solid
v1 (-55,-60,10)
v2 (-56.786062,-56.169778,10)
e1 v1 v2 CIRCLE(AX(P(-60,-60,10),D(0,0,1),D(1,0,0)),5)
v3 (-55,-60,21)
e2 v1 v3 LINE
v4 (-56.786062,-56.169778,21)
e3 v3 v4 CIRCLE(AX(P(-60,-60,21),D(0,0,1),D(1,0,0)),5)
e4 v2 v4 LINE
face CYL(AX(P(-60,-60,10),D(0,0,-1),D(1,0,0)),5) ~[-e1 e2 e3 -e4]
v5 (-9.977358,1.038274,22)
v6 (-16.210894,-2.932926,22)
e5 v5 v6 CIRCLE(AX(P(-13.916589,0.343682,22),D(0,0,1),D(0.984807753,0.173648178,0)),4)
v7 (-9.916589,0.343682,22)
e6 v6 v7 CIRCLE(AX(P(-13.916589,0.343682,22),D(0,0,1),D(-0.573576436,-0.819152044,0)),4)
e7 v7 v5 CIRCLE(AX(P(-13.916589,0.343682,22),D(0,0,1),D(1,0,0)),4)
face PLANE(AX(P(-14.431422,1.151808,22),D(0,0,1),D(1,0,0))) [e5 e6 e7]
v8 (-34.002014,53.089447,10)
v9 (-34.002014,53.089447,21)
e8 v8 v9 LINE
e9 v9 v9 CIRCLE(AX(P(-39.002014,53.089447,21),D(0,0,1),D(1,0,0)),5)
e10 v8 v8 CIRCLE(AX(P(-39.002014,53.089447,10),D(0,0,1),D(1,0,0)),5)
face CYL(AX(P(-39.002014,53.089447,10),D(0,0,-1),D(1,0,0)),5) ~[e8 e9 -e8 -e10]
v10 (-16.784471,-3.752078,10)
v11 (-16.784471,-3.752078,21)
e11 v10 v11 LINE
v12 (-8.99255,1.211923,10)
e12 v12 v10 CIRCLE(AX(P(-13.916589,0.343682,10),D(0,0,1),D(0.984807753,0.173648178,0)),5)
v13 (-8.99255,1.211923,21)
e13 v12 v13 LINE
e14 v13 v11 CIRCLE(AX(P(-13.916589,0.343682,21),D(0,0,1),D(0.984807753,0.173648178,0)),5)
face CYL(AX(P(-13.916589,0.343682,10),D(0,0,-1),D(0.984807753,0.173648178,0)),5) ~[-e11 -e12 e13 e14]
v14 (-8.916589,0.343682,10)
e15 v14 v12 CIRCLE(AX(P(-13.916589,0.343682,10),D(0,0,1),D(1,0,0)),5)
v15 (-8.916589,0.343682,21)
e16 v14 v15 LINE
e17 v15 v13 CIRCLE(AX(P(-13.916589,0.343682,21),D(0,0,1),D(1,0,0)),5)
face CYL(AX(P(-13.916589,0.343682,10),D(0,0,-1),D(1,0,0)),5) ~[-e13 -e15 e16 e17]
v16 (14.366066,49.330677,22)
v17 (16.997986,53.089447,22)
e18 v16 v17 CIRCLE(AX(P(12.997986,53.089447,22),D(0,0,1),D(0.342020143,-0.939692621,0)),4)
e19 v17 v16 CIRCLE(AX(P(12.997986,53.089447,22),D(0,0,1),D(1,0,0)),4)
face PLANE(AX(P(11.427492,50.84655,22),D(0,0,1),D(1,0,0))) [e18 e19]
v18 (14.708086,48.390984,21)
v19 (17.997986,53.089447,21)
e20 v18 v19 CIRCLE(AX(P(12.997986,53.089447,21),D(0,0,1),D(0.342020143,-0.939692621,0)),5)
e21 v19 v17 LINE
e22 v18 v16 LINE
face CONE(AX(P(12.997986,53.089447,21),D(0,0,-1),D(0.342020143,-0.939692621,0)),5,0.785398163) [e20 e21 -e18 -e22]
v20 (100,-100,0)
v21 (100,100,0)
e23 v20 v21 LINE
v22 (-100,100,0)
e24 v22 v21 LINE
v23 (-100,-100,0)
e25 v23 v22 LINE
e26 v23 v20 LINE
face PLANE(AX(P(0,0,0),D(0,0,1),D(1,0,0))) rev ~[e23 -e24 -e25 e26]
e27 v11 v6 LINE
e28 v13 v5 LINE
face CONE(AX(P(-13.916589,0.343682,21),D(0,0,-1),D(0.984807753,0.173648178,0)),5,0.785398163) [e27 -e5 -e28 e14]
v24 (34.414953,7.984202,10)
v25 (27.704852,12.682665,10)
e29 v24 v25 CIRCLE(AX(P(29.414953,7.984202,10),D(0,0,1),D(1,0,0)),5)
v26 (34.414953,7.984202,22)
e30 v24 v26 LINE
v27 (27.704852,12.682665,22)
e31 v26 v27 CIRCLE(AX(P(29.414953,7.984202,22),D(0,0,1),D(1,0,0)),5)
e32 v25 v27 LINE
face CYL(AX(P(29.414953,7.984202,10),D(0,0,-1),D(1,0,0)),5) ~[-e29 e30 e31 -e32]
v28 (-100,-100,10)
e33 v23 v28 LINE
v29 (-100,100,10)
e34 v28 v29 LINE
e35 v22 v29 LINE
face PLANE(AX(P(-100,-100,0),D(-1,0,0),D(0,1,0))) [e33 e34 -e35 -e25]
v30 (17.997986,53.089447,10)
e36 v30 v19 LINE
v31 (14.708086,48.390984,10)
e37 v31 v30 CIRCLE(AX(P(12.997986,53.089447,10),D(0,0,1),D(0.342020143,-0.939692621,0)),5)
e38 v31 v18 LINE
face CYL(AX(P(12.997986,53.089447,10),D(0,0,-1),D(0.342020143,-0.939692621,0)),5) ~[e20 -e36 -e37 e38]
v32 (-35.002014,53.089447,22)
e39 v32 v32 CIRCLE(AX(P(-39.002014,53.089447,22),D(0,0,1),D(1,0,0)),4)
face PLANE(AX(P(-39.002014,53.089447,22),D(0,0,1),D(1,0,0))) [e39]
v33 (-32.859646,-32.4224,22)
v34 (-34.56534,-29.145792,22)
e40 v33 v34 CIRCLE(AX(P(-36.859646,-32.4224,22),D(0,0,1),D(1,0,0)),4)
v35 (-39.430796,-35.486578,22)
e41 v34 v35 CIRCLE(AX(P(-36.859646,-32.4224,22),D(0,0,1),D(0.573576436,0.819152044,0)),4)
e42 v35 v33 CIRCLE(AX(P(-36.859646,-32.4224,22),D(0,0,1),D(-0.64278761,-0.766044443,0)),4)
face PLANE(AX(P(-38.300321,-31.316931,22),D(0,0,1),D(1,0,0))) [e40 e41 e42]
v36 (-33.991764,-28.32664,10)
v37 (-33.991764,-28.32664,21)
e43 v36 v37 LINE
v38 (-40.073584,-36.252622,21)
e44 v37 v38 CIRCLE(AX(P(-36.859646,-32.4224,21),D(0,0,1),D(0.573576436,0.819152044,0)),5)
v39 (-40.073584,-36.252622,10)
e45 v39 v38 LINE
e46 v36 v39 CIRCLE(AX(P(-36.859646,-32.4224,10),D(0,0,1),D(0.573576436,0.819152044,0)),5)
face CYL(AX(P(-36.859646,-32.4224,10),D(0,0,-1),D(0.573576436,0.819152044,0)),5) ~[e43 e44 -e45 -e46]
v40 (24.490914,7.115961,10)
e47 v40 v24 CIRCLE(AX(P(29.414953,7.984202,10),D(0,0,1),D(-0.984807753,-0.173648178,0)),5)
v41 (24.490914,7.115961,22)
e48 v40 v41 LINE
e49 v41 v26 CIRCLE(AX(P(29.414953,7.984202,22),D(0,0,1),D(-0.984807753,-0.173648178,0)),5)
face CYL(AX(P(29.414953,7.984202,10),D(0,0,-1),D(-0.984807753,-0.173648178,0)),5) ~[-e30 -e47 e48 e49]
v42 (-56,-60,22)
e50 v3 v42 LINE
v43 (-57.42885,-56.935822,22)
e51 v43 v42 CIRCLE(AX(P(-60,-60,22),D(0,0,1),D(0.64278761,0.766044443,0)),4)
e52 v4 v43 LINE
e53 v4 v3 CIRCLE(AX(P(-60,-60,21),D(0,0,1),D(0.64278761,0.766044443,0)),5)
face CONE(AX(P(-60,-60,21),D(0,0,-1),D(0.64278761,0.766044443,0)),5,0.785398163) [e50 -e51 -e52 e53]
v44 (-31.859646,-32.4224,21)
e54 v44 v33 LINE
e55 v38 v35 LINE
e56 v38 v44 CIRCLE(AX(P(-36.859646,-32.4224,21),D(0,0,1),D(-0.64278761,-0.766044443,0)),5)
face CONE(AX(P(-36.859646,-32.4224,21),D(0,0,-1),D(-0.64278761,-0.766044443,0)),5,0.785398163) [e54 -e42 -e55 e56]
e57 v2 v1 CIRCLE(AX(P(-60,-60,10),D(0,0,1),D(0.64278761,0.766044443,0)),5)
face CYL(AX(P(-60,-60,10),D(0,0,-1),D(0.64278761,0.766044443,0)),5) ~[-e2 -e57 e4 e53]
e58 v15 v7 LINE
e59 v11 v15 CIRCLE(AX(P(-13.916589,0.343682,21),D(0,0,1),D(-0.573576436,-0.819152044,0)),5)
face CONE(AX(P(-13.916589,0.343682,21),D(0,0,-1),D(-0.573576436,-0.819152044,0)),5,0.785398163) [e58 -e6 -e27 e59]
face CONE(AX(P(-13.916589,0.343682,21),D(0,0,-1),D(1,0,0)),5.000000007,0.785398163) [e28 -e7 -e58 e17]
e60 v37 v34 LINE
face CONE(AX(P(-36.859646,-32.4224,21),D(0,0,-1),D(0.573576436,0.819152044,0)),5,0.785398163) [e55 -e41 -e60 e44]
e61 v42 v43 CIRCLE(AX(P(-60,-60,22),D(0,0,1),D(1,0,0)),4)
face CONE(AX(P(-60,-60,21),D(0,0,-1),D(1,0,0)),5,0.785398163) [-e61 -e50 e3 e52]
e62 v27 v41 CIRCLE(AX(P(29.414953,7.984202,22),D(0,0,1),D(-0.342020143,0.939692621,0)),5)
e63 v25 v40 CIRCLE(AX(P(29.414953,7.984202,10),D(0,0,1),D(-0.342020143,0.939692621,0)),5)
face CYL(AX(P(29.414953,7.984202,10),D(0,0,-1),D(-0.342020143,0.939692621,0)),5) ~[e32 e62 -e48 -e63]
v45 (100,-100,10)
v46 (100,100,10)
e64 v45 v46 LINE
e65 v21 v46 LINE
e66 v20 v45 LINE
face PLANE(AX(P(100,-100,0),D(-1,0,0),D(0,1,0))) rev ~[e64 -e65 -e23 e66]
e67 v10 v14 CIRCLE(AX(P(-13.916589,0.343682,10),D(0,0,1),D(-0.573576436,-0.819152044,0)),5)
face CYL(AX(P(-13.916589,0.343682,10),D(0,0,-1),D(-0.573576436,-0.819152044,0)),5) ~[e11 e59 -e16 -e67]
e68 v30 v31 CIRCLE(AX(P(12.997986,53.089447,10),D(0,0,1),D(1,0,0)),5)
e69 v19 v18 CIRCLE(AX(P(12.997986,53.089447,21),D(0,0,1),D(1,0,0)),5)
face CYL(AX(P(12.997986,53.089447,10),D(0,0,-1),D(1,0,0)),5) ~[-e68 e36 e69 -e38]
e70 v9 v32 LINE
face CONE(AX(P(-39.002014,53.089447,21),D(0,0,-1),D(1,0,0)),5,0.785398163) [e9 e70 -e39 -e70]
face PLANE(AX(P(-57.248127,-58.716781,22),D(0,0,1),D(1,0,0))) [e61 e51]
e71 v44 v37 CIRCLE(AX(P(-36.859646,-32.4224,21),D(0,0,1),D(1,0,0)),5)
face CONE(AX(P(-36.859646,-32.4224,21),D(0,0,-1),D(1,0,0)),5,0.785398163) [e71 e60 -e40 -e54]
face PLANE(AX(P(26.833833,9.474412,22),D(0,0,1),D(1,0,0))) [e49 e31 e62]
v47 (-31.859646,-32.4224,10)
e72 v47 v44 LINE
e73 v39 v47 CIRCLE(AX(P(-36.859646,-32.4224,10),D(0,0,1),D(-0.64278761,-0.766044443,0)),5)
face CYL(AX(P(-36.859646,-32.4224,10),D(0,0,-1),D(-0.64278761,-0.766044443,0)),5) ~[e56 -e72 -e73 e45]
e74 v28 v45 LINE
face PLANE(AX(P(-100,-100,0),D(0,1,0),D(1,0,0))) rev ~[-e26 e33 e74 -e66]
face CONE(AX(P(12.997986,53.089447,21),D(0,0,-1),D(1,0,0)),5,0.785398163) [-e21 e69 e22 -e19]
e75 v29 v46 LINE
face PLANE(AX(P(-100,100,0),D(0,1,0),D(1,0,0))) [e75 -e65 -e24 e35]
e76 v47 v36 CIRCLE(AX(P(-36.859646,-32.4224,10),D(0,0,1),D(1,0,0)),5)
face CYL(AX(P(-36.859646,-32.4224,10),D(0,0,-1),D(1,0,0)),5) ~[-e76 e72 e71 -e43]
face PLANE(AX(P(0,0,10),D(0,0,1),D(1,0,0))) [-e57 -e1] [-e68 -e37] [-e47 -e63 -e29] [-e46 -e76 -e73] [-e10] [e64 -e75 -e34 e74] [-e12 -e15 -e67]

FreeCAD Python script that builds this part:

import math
import FreeCAD as App
import Part
import Sketcher
from FreeCAD import Vector


def edges_at(feature, points):
    """Names of the edges that pass closest to the given points."""
    edges = feature.Shape.Edges
    near = lambda p: min(range(len(edges)), key=lambda i: edges[i].distToShape(Part.Vertex(*p))[0])
    return sorted({f"Edge{near(p) + 1}" for p in points})

doc = App.newDocument("Part")
body = doc.addObject("PartDesign::Body", "Body")

sketch1 = body.newObject("Sketcher::SketchObject", "Sketch")
sketch1.AttachmentSupport = (doc.getObject("XY_Plane"), [""])
sketch1.MapMode = "FlatFace"
sketch1.addGeometry(Part.LineSegment(Vector(-100, 100, 0), Vector(-100, -100, 0)), False)
sketch1.addGeometry(Part.LineSegment(Vector(-100, -100, 0), Vector(100, -100, 0)), False)
sketch1.addGeometry(Part.LineSegment(Vector(100, -100, 0), Vector(100, 100, 0)), False)
sketch1.addGeometry(Part.LineSegment(Vector(100, 100, 0), Vector(-100, 100, 0)), False)
sketch1.addConstraint(Sketcher.Constraint("Coincident", 0, 2, 1, 1))
sketch1.addConstraint(Sketcher.Constraint("Coincident", 1, 2, 2, 1))
sketch1.addConstraint(Sketcher.Constraint("Coincident", 2, 2, 3, 1))
sketch1.addConstraint(Sketcher.Constraint("Coincident", 3, 2, 0, 1))
sketch1.addConstraint(Sketcher.Constraint("Vertical", 0))
sketch1.addConstraint(Sketcher.Constraint("Horizontal", 1))
sketch1.addConstraint(Sketcher.Constraint("Vertical", 2))
sketch1.addConstraint(Sketcher.Constraint("Horizontal", 3))
sketch1.addConstraint(Sketcher.Constraint("Symmetric", 0, 2, 2, 2, -1, 1))
sketch1.addConstraint(Sketcher.Constraint("Equal", 3, 0))
sketch1.addConstraint(Sketcher.Constraint("DistanceX", 1, 1, 1, 2, 200.0))
pad1 = body.newObject("PartDesign::Pad", "Pad")
pad1.Profile = sketch1
pad1.Length = 10

sketch2 = body.newObject("Sketcher::SketchObject", "Sketch001")
sketch2.AttachmentSupport = (doc.getObject("XY_Plane"), [""])
sketch2.MapMode = "FlatFace"
sketch2.AttachmentOffset = App.Placement(Vector(0, 0, 10), App.Rotation())
sketch2.addGeometry(Part.ArcOfCircle(Part.Circle(Vector(-60, -60, 0), Vector(0, 0, 1), 5), math.radians(0), math.radians(50)), False)
sketch2.addGeometry(Part.ArcOfCircle(Part.Circle(Vector(-60, -60, 0), Vector(0, 0, 1), 5), math.radians(50), math.radians(360)), False)
sketch2.addGeometry(Part.Circle(Vector(-39, 53.1, 0), Vector(0, 0, 1), 5), False)
sketch2.addGeometry(Part.ArcOfCircle(Part.Circle(Vector(13, 53.1, 0), Vector(0, 0, 1), 5), math.radians(-70), math.radians(0)), False)
sketch2.addGeometry(Part.ArcOfCircle(Part.Circle(Vector(13, 53.1, 0), Vector(0, 0, 1), 5), math.radians(0), math.radians(290)), False)
sketch2.addGeometry(Part.ArcOfCircle(Part.Circle(Vector(29.4, 8, 0), Vector(0, 0, 1), 5), math.radians(110), math.radians(190)), False)
sketch2.addGeometry(Part.ArcOfCircle(Part.Circle(Vector(29.4, 8, 0), Vector(0, 0, 1), 5), math.radians(-170), math.radians(0)), False)
sketch2.addGeometry(Part.ArcOfCircle(Part.Circle(Vector(29.4, 8, 0), Vector(0, 0, 1), 5), math.radians(0), math.radians(110)), False)
sketch2.addGeometry(Part.ArcOfCircle(Part.Circle(Vector(-13.9, 0.3, 0), Vector(0, 0, 1), 5), math.radians(10), math.radians(235)), False)
sketch2.addGeometry(Part.ArcOfCircle(Part.Circle(Vector(-13.9, 0.3, 0), Vector(0, 0, 1), 5), math.radians(-125), math.radians(0)), False)
sketch2.addGeometry(Part.ArcOfCircle(Part.Circle(Vector(-13.9, 0.3, 0), Vector(0, 0, 1), 5), math.radians(0), math.radians(10)), False)
sketch2.addGeometry(Part.ArcOfCircle(Part.Circle(Vector(-36.9, -32.4, 0), Vector(0, 0, 1), 5), math.radians(55), math.radians(230)), False)
sketch2.addGeometry(Part.ArcOfCircle(Part.Circle(Vector(-36.9, -32.4, 0), Vector(0, 0, 1), 5), math.radians(-130), math.radians(0)), False)
sketch2.addGeometry(Part.ArcOfCircle(Part.Circle(Vector(-36.9, -32.4, 0), Vector(0, 0, 1), 5), math.radians(0), math.radians(55)), False)
sketch2.addConstraint(Sketcher.Constraint("Tangent", 0, 1, 1, 2))
sketch2.addConstraint(Sketcher.Constraint("Coincident", 1, 1, 0, 2))
sketch2.addConstraint(Sketcher.Constraint("Tangent", 3, 1, 4, 2))
sketch2.addConstraint(Sketcher.Constraint("Coincident", 4, 1, 3, 2))
sketch2.addConstraint(Sketcher.Constraint("Tangent", 5, 2, 6, 1))
sketch2.addConstraint(Sketcher.Constraint("Tangent", 6, 2, 7, 1))
sketch2.addConstraint(Sketcher.Constraint("Tangent", 7, 2, 5, 1))
sketch2.addConstraint(Sketcher.Constraint("Tangent", 8, 2, 9, 1))
sketch2.addConstraint(Sketcher.Constraint("Tangent", 9, 2, 10, 1))
sketch2.addConstraint(Sketcher.Constraint("Tangent", 10, 2, 8, 1))
sketch2.addConstraint(Sketcher.Constraint("Tangent", 11, 2, 12, 1))
sketch2.addConstraint(Sketcher.Constraint("Tangent", 12, 2, 13, 1))
sketch2.addConstraint(Sketcher.Constraint("Tangent", 13, 2, 11, 1))
sketch2.addConstraint(Sketcher.Constraint("Equal", 1, 2))
sketch2.addConstraint(Sketcher.Constraint("Equal", 2, 3))
sketch2.addConstraint(Sketcher.Constraint("Equal", 4, 5))
sketch2.addConstraint(Sketcher.Constraint("Equal", 7, 8))
sketch2.addConstraint(Sketcher.Constraint("Equal", 10, 11))
sketch2.addConstraint(Sketcher.Constraint("Horizontal", 2, 3, 3, 3))
sketch2.addConstraint(Sketcher.Constraint("Horizontal", 1, 3, 0, 1))
sketch2.addConstraint(Sketcher.Constraint("Horizontal", 3, 3, 4, 1))
sketch2.addConstraint(Sketcher.Constraint("Horizontal", 7, 3, 6, 2))
sketch2.addConstraint(Sketcher.Constraint("Horizontal", 10, 3, 9, 2))
sketch2.addConstraint(Sketcher.Constraint("Horizontal", 13, 3, 12, 2))
sketch2.addConstraint(Sketcher.Constraint("Diameter", 2, 10.0))
sketch2.addConstraint(Sketcher.Constraint("DistanceX", 0, 3, -1, 1, 60.0))
sketch2.addConstraint(Sketcher.Constraint("DistanceY", 0, 3, -1, 1, 60.0))
sketch2.addConstraint(Sketcher.Constraint("DistanceX", 2, 3, 3, 3, 52.0))
sketch2.addConstraint(Sketcher.Constraint("DistanceY", 8, 2, 10, 2, 4.964001))
sketch2.addConstraint(Sketcher.Constraint("DistanceY", -1, 1, 5, 3, 7.984202))
sketch2.addConstraint(Sketcher.Constraint("DistanceY", 11, 3, -1, 1, 32.4224))
sketch2.addConstraint(Sketcher.Constraint("DistanceX", 4, 3, 3, 1, 1.710101))
sketch2.addConstraint(Sketcher.Constraint("DistanceX", 7, 2, 5, 3, 1.710101))
sketch2.addConstraint(Sketcher.Constraint("DistanceX", 8, 3, -1, 1, 13.916589))
sketch2.addConstraint(Sketcher.Constraint("DistanceY", -1, 1, 8, 3, 0.343682))
sketch2.addConstraint(Sketcher.Constraint("DistanceX", 1, 1, -1, 1, 56.786062))
sketch2.addConstraint(Sketcher.Constraint("DistanceY", -1, 1, 5, 2, 7.115961))
sketch2.addConstraint(Sketcher.Constraint("DistanceX", -1, 1, 7, 2, 27.704852))
sketch2.addConstraint(Sketcher.Constraint("DistanceX", 8, 2, -1, 1, 16.784471))
sketch2.addConstraint(Sketcher.Constraint("DistanceY", 13, 2, -1, 1, 28.32664))
sketch2.addConstraint(Sketcher.Constraint("DistanceX", 11, 2, 11, 3, 3.213938))
sketch2.addConstraint(Sketcher.Constraint("DistanceX", 2, 3, -1, 1, 39.002014))
sketch2.addConstraint(Sketcher.Constraint("DistanceY", -1, 1, 2, 3, 53.089447))
sketch2.addConstraint(Sketcher.Constraint("DistanceX", 11, 3, -1, 1, 36.859646))
pad2 = body.newObject("PartDesign::Pad", "Pad001")
pad2.Profile = sketch2
pad2.Length = 12
doc.recompute()

chamfer = body.newObject("PartDesign::Chamfer", "Chamfer")
chamfer.Base = (pad2, edges_at(pad2, [
    (-64.532, -62.113, 22),
    (-32.425, -30.114, 22),
    (-16.603, 4.561, 22),
    (8.902, 55.957, 22),
    (-44.002, 53.089, 22),
]))
chamfer.Size = 1

doc.recompute()
